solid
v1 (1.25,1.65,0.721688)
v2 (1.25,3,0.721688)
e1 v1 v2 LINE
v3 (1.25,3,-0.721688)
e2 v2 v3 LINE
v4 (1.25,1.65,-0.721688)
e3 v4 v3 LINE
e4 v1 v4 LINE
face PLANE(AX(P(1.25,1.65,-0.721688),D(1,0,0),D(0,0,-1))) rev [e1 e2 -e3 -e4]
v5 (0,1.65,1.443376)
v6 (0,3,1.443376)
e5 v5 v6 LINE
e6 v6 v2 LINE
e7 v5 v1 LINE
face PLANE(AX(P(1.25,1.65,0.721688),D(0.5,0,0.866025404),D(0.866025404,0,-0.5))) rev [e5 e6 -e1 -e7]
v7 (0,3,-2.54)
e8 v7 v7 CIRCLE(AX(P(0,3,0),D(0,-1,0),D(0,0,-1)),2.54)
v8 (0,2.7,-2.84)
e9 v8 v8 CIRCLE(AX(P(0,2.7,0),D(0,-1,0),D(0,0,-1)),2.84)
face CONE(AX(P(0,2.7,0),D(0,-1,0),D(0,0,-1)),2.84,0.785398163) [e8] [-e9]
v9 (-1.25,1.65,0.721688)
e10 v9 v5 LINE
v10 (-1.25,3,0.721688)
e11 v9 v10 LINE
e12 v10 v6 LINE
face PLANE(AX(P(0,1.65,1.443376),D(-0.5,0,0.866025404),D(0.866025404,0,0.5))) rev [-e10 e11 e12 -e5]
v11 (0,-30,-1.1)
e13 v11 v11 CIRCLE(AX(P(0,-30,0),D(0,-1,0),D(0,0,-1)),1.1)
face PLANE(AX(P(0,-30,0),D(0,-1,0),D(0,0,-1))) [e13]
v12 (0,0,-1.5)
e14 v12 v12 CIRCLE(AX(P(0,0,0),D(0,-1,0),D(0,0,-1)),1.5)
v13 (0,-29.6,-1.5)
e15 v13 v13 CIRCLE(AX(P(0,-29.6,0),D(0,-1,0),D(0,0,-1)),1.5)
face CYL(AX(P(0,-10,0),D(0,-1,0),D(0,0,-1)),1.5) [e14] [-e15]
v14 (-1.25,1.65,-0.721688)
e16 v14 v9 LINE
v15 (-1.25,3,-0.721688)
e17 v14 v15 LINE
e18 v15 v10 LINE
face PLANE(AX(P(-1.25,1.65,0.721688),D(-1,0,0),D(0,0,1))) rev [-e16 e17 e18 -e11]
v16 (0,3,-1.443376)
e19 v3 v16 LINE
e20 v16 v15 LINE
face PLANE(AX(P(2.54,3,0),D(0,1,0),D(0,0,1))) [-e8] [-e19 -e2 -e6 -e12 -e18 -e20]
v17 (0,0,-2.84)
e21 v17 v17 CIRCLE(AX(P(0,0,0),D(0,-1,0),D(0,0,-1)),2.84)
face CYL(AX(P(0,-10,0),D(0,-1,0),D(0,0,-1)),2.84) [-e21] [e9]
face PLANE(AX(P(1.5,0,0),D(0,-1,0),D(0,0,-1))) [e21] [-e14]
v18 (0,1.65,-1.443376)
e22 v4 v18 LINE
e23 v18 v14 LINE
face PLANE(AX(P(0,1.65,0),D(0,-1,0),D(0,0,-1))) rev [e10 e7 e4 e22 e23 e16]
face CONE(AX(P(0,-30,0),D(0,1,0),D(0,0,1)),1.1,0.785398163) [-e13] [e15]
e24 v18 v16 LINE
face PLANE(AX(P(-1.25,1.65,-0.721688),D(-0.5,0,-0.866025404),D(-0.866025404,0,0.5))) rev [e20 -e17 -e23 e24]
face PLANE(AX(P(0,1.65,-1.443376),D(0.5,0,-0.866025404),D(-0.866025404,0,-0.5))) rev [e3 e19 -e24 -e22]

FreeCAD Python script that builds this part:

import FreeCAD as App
import Part
import Sketcher
from FreeCAD import Vector
Q = App.Units.Quantity

doc = App.newDocument("Part")
params = doc.addObject("Spreadsheet::Sheet", "Params")
for row, (alias, value) in enumerate([
    ("sketch1_height", "33 mm"),
    ("sketch1_width", "1.1 mm"),
    ("sketch1_height2", "29.6 mm"),
    ("sketch1_height3", "2.7 mm"),
    ("sketch1_width2", "1.34 mm"),
    ("revolution_angle", "360 deg"),
    ("pocket1_length", "1.35 mm"),
], start=1):
    params.set(f"A{row}", alias)
    params.set(f"B{row}", "=" + value)
    params.setAlias(f"B{row}", alias)

body = doc.addObject("PartDesign::Body", "Body")

# Sketch on XY plane
sketch1 = body.newObject("Sketcher::SketchObject", "Sketch")
sketch1.AttachmentSupport = (doc.getObject("XY_Plane"), [""])
sketch1.MapMode = "FlatFace"
sketch1.addGeometry([
    Part.LineSegment(Vector(0, -30, 0), Vector(1.1, -30, 0)),  # 0
    Part.LineSegment(Vector(1.1, -30, 0), Vector(1.5, -29.6, 0)),  # 1
    Part.LineSegment(Vector(1.5, -29.6, 0), Vector(1.5, 0, 0)),  # 2
    Part.LineSegment(Vector(1.5, 0, 0), Vector(2.84, 0, 0)),  # 3
    Part.LineSegment(Vector(2.84, 0, 0), Vector(2.84, 2.7, 0)),  # 4
    Part.LineSegment(Vector(2.84, 2.7, 0), Vector(2.54, 3, 0)),  # 5
    Part.LineSegment(Vector(2.54, 3, 0), Vector(0, 3, 0)),  # 6
    Part.LineSegment(Vector(0, 3, 0), Vector(0, -30, 0)),  # 7
], False)
sketch1.addConstraint([
    Sketcher.Constraint("Coincident", 0, 2, 1, 1),
    Sketcher.Constraint("Coincident", 1, 2, 2, 1),
    Sketcher.Constraint("Coincident", 2, 2, 3, 1),
    Sketcher.Constraint("Coincident", 3, 2, 4, 1),
    Sketcher.Constraint("Coincident", 4, 2, 5, 1),
    Sketcher.Constraint("Coincident", 5, 2, 6, 1),
    Sketcher.Constraint("Coincident", 6, 2, 7, 1),
    Sketcher.Constraint("Coincident", 7, 2, 0, 1),
    Sketcher.Constraint("Horizontal", 0),
    Sketcher.Constraint("Vertical", 2),
    Sketcher.Constraint("Horizontal", 3),
    Sketcher.Constraint("Vertical", 4),
    Sketcher.Constraint("Horizontal", 6),
    Sketcher.Constraint("Vertical", 7),
    Sketcher.Constraint("PointOnObject", 2, 2, -1),
    Sketcher.Constraint("PointOnObject", 6, 2, -2),
    Sketcher.Constraint("Perpendicular", 1, 5),
    Sketcher.Constraint("DistanceY", 7, 2, 7, 1, Q("33 mm")),
    Sketcher.Constraint("Angle", 1, Q("45 deg")),
    Sketcher.Constraint("DistanceX", 0, 1, 0, 2, Q("1.1 mm")),
    Sketcher.Constraint("DistanceY", 2, 1, 2, 2, Q("29.6 mm")),
    Sketcher.Constraint("DistanceY", 4, 1, 4, 2, Q("2.7 mm")),
    Sketcher.Constraint("DistanceY", 0, 2, -1, 1, Q("30 mm")),
    Sketcher.Constraint("DistanceX", 3, 1, 3, 2, Q("1.34 mm")),
])
sketch1.setExpression("Constraints[17]", "Params.sketch1_height")
sketch1.setExpression("Constraints[19]", "Params.sketch1_width")
sketch1.setExpression("Constraints[20]", "Params.sketch1_height2")
sketch1.setExpression("Constraints[21]", "Params.sketch1_height3")
sketch1.setExpression("Constraints[23]", "Params.sketch1_width2")
revolution = body.newObject("PartDesign::Revolution", "Revolution")
revolution.Profile = sketch1
revolution.ReferenceAxis = (sketch1, ["V_Axis"])
revolution.setExpression("Angle", "Params.revolution_angle")

# Sketch on XZ plane
sketch2 = body.newObject("Sketcher::SketchObject", "Sketch001")
sketch2.AttachmentSupport = (doc.getObject("XZ_Plane"), [""])
sketch2.MapMode = "FlatFace"
sketch2.AttachmentOffset = App.Placement(Vector(0, 0, -3), App.Rotation())
sketch2.addGeometry([
    Part.LineSegment(Vector(0, 1.4, 0), Vector(1.2, 0.7, 0)),  # 0
    Part.LineSegment(Vector(1.2, 0.7, 0), Vector(1.2, -0.7, 0)),  # 1
    Part.LineSegment(Vector(1.2, -0.7, 0), Vector(0, -1.4, 0)),  # 2
    Part.LineSegment(Vector(0, -1.4, 0), Vector(-1.2, -0.7, 0)),  # 3
    Part.LineSegment(Vector(-1.2, -0.7, 0), Vector(-1.2, 0.7, 0)),  # 4
    Part.LineSegment(Vector(-1.2, 0.7, 0), Vector(0, 1.4, 0)),  # 5
], False)
sketch2.addConstraint([
    Sketcher.Constraint("Coincident", 0, 2, 1, 1),
    Sketcher.Constraint("Coincident", 1, 2, 2, 1),
    Sketcher.Constraint("Coincident", 2, 2, 3, 1),
    Sketcher.Constraint("Coincident", 3, 2, 4, 1),
    Sketcher.Constraint("Coincident", 4, 2, 5, 1),
    Sketcher.Constraint("Coincident", 5, 2, 0, 1),
    Sketcher.Constraint("Vertical", 1),
    Sketcher.Constraint("Vertical", 4),
    Sketcher.Constraint("Symmetric", 0, 2, 3, 2, -1, 1),
    Sketcher.Constraint("Symmetric", 2, 2, 5, 2, -1, 1),
    Sketcher.Constraint("PointOnObject", 2, 2, -2),
    Sketcher.Constraint("Parallel", 2, 5),
    Sketcher.Constraint("Horizontal", 1, 2, 3, 2),
    Sketcher.Constraint("Angle", 0, Q("-30 deg")),
    Sketcher.Constraint("DistanceX", 3, 2, 1, 2, Q("2.5 mm")),
    Sketcher.Constraint("DistanceY", 1, 2, 1, 1, Q("1.443376 mm")),
])
pocket1 = body.newObject("PartDesign::Pocket", "Pocket")
pocket1.Profile = sketch2
pocket1.setExpression("Length", "Params.pocket1_length")
pocket1.Reversed = True

doc.recompute()
